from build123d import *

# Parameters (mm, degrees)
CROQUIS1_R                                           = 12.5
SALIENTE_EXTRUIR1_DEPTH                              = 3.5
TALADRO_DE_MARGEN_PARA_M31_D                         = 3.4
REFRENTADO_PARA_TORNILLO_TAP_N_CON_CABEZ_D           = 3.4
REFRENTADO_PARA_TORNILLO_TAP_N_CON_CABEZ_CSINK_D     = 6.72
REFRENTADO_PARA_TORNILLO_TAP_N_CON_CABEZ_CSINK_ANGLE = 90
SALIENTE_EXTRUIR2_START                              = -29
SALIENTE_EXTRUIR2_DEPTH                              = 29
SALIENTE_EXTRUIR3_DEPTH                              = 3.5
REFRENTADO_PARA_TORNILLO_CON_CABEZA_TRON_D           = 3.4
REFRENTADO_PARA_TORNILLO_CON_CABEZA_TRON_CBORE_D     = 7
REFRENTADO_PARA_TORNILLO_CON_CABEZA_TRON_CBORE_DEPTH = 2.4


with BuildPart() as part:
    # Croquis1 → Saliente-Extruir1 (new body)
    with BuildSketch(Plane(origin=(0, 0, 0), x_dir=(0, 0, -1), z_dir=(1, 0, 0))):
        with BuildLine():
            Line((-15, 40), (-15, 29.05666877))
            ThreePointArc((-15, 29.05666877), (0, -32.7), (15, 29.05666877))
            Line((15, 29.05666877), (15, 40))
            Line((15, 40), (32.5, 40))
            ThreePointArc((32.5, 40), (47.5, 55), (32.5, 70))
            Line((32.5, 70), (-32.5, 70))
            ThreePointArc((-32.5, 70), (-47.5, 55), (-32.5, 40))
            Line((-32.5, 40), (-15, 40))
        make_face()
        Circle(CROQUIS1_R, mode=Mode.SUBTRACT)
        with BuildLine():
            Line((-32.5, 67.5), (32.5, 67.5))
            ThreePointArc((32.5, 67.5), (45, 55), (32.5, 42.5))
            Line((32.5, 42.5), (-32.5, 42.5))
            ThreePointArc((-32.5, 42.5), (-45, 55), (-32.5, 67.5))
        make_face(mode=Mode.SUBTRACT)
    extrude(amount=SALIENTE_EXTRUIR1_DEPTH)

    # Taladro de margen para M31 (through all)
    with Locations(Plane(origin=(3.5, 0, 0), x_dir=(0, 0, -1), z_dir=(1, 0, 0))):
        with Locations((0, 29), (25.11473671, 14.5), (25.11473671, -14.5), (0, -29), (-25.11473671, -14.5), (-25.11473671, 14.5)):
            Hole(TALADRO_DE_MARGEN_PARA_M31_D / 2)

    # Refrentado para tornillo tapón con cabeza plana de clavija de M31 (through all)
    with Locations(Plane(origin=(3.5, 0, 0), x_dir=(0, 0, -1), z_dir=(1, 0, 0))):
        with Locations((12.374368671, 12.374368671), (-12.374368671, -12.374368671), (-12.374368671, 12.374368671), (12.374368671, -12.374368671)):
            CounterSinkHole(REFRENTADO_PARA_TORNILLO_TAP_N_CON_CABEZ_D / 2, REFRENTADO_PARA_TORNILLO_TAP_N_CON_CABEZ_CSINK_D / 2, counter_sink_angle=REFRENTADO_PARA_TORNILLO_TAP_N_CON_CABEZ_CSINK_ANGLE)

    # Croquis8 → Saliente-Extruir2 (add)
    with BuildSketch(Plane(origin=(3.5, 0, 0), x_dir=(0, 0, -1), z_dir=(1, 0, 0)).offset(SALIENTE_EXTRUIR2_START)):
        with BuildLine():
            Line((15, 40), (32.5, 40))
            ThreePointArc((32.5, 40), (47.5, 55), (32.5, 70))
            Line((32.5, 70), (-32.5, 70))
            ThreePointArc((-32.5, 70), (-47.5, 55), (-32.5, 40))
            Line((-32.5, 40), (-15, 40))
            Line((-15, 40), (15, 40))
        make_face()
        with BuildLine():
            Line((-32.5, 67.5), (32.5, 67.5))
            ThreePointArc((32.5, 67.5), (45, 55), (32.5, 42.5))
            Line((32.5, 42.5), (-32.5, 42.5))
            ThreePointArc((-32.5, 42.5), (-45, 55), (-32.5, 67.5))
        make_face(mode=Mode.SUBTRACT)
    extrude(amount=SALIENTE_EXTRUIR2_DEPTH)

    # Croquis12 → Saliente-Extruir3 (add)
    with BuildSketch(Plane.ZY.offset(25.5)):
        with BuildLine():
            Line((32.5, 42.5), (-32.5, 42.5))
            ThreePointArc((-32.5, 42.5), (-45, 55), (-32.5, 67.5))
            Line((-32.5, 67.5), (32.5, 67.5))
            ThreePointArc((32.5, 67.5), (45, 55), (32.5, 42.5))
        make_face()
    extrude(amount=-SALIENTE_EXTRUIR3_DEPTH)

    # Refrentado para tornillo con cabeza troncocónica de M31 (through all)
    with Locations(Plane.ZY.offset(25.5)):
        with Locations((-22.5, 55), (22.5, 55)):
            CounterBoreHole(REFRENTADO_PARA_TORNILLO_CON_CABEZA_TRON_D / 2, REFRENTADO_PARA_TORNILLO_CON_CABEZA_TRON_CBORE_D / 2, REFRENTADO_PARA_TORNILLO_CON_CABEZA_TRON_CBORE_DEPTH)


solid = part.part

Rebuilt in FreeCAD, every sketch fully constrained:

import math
import FreeCAD as App
import Part
import Sketcher
from FreeCAD import Vector
Q = App.Units.Quantity

doc = App.newDocument("Part")
params = doc.addObject("Spreadsheet::Sheet", "Params")
for row, (alias, value) in enumerate([
    ("sketch1_diameter", "25 mm"),
    ("sketch1_radius", "15 mm"),
    ("sketch1_radius2", "32.7 mm"),
    ("sketch1_height", "65 mm"),
    ("sketch1_height2", "17.5 mm"),
    ("pad1_length", "3.5 mm"),
    ("sketch2_diameter", "3.4 mm"),
    ("hole_diameter", "3.4 mm"),
    ("sketch3_diameter", "3.4 mm"),
    ("hole2_diameter", "3.4 mm"),
    ("hole2_csink_diameter", "6.72 mm"),
    ("sketch4_radius", "15 mm"),
    ("sketch4_radius2", "12.5 mm"),
    ("sketch4_height", "65 mm"),
    ("pad2_length", "29 mm"),
    ("sketch5_radius", "12.5 mm"),
    ("sketch5_height", "65 mm"),
    ("pad3_length", "3.5 mm"),
    ("sketch6_diameter", "3.4 mm"),
    ("hole3_diameter", "3.4 mm"),
    ("hole3_cbore_diameter", "7 mm"),
    ("hole3_cbore_depth", "2.4 mm"),
], start=1):
    params.set(f"A{row}", alias)
    params.set(f"B{row}", "=" + value)
    params.setAlias(f"B{row}", alias)

body = doc.addObject("PartDesign::Body", "Body")

sketch1 = body.newObject("Sketcher::SketchObject", "Sketch")
sketch1.AttachmentSupport = (doc.getObject("YZ_Plane"), [""])
sketch1.MapMode = "FlatFace"
sketch1.addGeometry([
    Part.LineSegment(Vector(40, 15, 0), Vector(29, 15, 0)),
    Part.ArcOfCircle(Part.Circle(Vector(0, 0, 0), Vector(0, 0, 1), 33), math.radians(27), math.radians(333)),
    Part.LineSegment(Vector(29, -15, 0), Vector(40, -15, 0)),
    Part.LineSegment(Vector(40, -15, 0), Vector(40, -32, 0)),
    Part.ArcOfCircle(Part.Circle(Vector(55, -32, 0), Vector(0, 0, 1), 15), math.radians(180), math.radians(360)),
    Part.LineSegment(Vector(70, -32, 0), Vector(70, 32, 0)),
    Part.ArcOfCircle(Part.Circle(Vector(55, 32, 0), Vector(0, 0, 1), 15), math.radians(0), math.radians(180)),
    Part.LineSegment(Vector(40, 32, 0), Vector(40, 15, 0)),
    Part.Circle(Vector(0, 0, 0), Vector(0, 0, 1), 12),
    Part.ArcOfCircle(Part.Circle(Vector(55, 32, 0), Vector(0, 0, 1), 12), math.radians(0), math.radians(180)),
    Part.LineSegment(Vector(68, 32, 0), Vector(68, -32, 0)),
    Part.ArcOfCircle(Part.Circle(Vector(55, -32, 0), Vector(0, 0, 1), 12), math.radians(180), math.radians(360)),
    Part.LineSegment(Vector(42, -32, 0), Vector(42, 32, 0)),
], False)
sketch1.addConstraint([
    Sketcher.Constraint("Coincident", 0, 2, 1, 1),
    Sketcher.Constraint("Coincident", 1, 2, 2, 1),
    Sketcher.Constraint("Coincident", 2, 2, 3, 1),
    Sketcher.Constraint("Tangent", 3, 2, 4, 1),
    Sketcher.Constraint("Tangent", 4, 2, 5, 1),
    Sketcher.Constraint("Tangent", 5, 2, 6, 1),
    Sketcher.Constraint("Tangent", 6, 2, 7, 1),
    Sketcher.Constraint("Coincident", 7, 2, 0, 1),
    Sketcher.Constraint("Tangent", 9, 1, 10, 1),
    Sketcher.Constraint("Tangent", 10, 2, 11, 2),
    Sketcher.Constraint("Tangent", 11, 1, 12, 1),
    Sketcher.Constraint("Tangent", 12, 2, 9, 2),
    Sketcher.Constraint("Horizontal", 0),
    Sketcher.Constraint("Horizontal", 2),
    Sketcher.Constraint("Vertical", 3),
    Sketcher.Constraint("Vertical", 5),
    Sketcher.Constraint("Vertical", 7),
    Sketcher.Constraint("Vertical", 10),
    Sketcher.Constraint("Vertical", 12),
    Sketcher.Constraint("Coincident", 1, 3, -1, 1),
    Sketcher.Constraint("Coincident", 8, 3, -1, 1),
    Sketcher.Constraint("Coincident", 9, 3, 6, 3),
    Sketcher.Constraint("Coincident", 11, 3, 4, 3),
    Sketcher.Constraint("Equal", 8, 9),
    Sketcher.Constraint("Vertical", 0, 2, 1, 2),
    Sketcher.Constraint("Equal", 3, 7),
    Sketcher.Constraint("Diameter", 8, Q("25 mm")),
    Sketcher.Constraint("Radius", 4, Q("15 mm")),
    Sketcher.Constraint("Radius", 1, Q("32.7 mm")),
    Sketcher.Constraint("DistanceY", 5, 1, 5, 2, Q("65 mm")),
    Sketcher.Constraint("DistanceY", 3, 2, 3, 1, Q("17.5 mm")),
    Sketcher.Constraint("DistanceX", -1, 1, 4, 3, Q("55 mm")),
])
sketch1.setExpression("Constraints[26]", "Params.sketch1_diameter")
sketch1.setExpression("Constraints[27]", "Params.sketch1_radius")
sketch1.setExpression("Constraints[28]", "Params.sketch1_radius2")
sketch1.setExpression("Constraints[29]", "Params.sketch1_height")
sketch1.setExpression("Constraints[30]", "Params.sketch1_height2")
pad1 = body.newObject("PartDesign::Pad", "Pad")
pad1.Profile = sketch1
pad1.setExpression("Length", "Params.pad1_length")

sketch2 = body.newObject("Sketcher::SketchObject", "Sketch001")
sketch2.AttachmentSupport = (doc.getObject("YZ_Plane"), [""])
sketch2.MapMode = "FlatFace"
sketch2.AttachmentOffset = App.Placement(Vector(0, 0, 3.5), App.Rotation())
sketch2.addGeometry([
    Part.Circle(Vector(29, 0, 0), Vector(0, 0, 1), 1.7),
    Part.Circle(Vector(14.5, -25.1, 0), Vector(0, 0, 1), 1.7),
    Part.Circle(Vector(-14.5, -25.1, 0), Vector(0, 0, 1), 1.7),
    Part.Circle(Vector(-29, 0, 0), Vector(0, 0, 1), 1.7),
    Part.Circle(Vector(-14.5, 25.1, 0), Vector(0, 0, 1), 1.7),
    Part.Circle(Vector(14.5, 25.1, 0), Vector(0, 0, 1), 1.7),
], False)
sketch2.addConstraint([
    Sketcher.Constraint("Equal", 0, 1),
    Sketcher.Constraint("Equal", 1, 2),
    Sketcher.Constraint("Equal", 2, 3),
    Sketcher.Constraint("Equal", 3, 4),
    Sketcher.Constraint("Equal", 4, 5),
    Sketcher.Constraint("Symmetric", 0, 3, 3, 3, -1, 1),
    Sketcher.Constraint("Symmetric", 1, 3, 4, 3, -1, 1),
    Sketcher.Constraint("Symmetric", 2, 3, 5, 3, -1, 1),
    Sketcher.Constraint("Symmetric", 1, 3, 2, 3, -2),
    Sketcher.Constraint("PointOnObject", 0, 3, -1),
    Sketcher.Constraint("Diameter", 0, Q("3.4 mm")),
    Sketcher.Constraint("DistanceX", -1, 1, 0, 3, Q("29 mm")),
    Sketcher.Constraint("DistanceX", 2, 3, 1, 3, Q("29 mm")),
    Sketcher.Constraint("DistanceY", 1, 3, -1, 1, Q("25.114737 mm")),
])
sketch2.setExpression("Constraints[10]", "Params.sketch2_diameter")
doc.recompute()
hole = body.newObject("PartDesign::Hole", "Hole")
hole.Profile = sketch2
hole.ThreadType = "None"
hole.setExpression("Diameter", "Params.hole_diameter")
hole.DepthType = "ThroughAll"

sketch3 = body.newObject("Sketcher::SketchObject", "Sketch002")
sketch3.AttachmentSupport = (doc.getObject("YZ_Plane"), [""])
sketch3.MapMode = "FlatFace"
sketch3.AttachmentOffset = App.Placement(Vector(0, 0, 3.5), App.Rotation())
sketch3.addGeometry([
    Part.Circle(Vector(12.4, -12.4, 0), Vector(0, 0, 1), 1.7),
    Part.Circle(Vector(-12.4, 12.4, 0), Vector(0, 0, 1), 1.7),
    Part.Circle(Vector(12.4, 12.4, 0), Vector(0, 0, 1), 1.7),
    Part.Circle(Vector(-12.4, -12.4, 0), Vector(0, 0, 1), 1.7),
], False)
sketch3.addConstraint([
    Sketcher.Constraint("Equal", 0, 1),
    Sketcher.Constraint("Equal", 1, 2),
    Sketcher.Constraint("Equal", 2, 3),
    Sketcher.Constraint("Symmetric", 0, 3, 1, 3, -1, 1),
    Sketcher.Constraint("Symmetric", 2, 3, 3, 3, -1, 1),
    Sketcher.Constraint("Symmetric", 1, 3, 2, 3, -2),
    Sketcher.Constraint("Diameter", 0, Q("3.4 mm")),
    Sketcher.Constraint("DistanceX", -1, 1, 0, 3, Q("12.374369 mm")),
    Sketcher.Constraint("DistanceY", 0, 3, -1, 1, Q("12.374369 mm")),
])
sketch3.setExpression("Constraints[6]", "Params.sketch3_diameter")
doc.recompute()
hole2 = body.newObject("PartDesign::Hole", "Hole001")
hole2.Profile = sketch3
hole2.ThreadType = "None"
hole2.setExpression("Diameter", "Params.hole2_diameter")
hole2.DepthType = "ThroughAll"
hole2.HoleCutType = "Countersink"
hole2.setExpression("HoleCutDiameter", "Params.hole2_csink_diameter")
hole2.HoleCutCountersinkAngle = 90

sketch4 = body.newObject("Sketcher::SketchObject", "Sketch003")
sketch4.AttachmentSupport = (doc.getObject("YZ_Plane"), [""])
sketch4.MapMode = "FlatFace"
sketch4.AttachmentOffset = App.Placement(Vector(0, 0, -25.5), App.Rotation())
sketch4.addGeometry([
    Part.ArcOfCircle(Part.Circle(Vector(55, -32, 0), Vector(0, 0, 1), 15), math.radians(180), math.radians(360)),
    Part.LineSegment(Vector(70, -32, 0), Vector(70, 32, 0)),
    Part.ArcOfCircle(Part.Circle(Vector(55, 32, 0), Vector(0, 0, 1), 15), math.radians(0), math.radians(180)),
    Part.LineSegment(Vector(40, 32, 0), Vector(40, -32, 0)),
    Part.ArcOfCircle(Part.Circle(Vector(55, 32, 0), Vector(0, 0, 1), 12), math.radians(0), math.radians(180)),
    Part.LineSegment(Vector(68, 32, 0), Vector(68, -32, 0)),
    Part.ArcOfCircle(Part.Circle(Vector(55, -32, 0), Vector(0, 0, 1), 12), math.radians(180), math.radians(360)),
    Part.LineSegment(Vector(42, -32, 0), Vector(42, 32, 0)),
], False)
sketch4.addConstraint([
    Sketcher.Constraint("Tangent", 0, 2, 1, 1),
    Sketcher.Constraint("Tangent", 1, 2, 2, 1),
    Sketcher.Constraint("Tangent", 2, 2, 3, 1),
    Sketcher.Constraint("Tangent", 3, 2, 0, 1),
    Sketcher.Constraint("Tangent", 4, 1, 5, 1),
    Sketcher.Constraint("Tangent", 5, 2, 6, 2),
    Sketcher.Constraint("Tangent", 6, 1, 7, 1),
    Sketcher.Constraint("Tangent", 7, 2, 4, 2),
    Sketcher.Constraint("Vertical", 1),
    Sketcher.Constraint("Vertical", 3),
    Sketcher.Constraint("Vertical", 5),
    Sketcher.Constraint("Vertical", 7),
    Sketcher.Constraint("Coincident", 4, 3, 2, 3),
    Sketcher.Constraint("Horizontal", 6, 3, 0, 2),
    Sketcher.Constraint("Radius", 0, Q("15 mm")),
    Sketcher.Constraint("Radius", 4, Q("12.5 mm")),
    Sketcher.Constraint("DistanceY", 1, 1, 1, 2, Q("65 mm")),
    Sketcher.Constraint("DistanceX", -1, 1, 0, 3, Q("55 mm")),
    Sketcher.Constraint("DistanceY", 0, 3, -1, 1, Q("32.5 mm")),
])
sketch4.setExpression("Constraints[14]", "Params.sketch4_radius")
sketch4.setExpression("Constraints[15]", "Params.sketch4_radius2")
sketch4.setExpression("Constraints[16]", "Params.sketch4_height")
pad2 = body.newObject("PartDesign::Pad", "Pad001")
pad2.Profile = sketch4
pad2.setExpression("Length", "Params.pad2_length")

sketch5 = body.newObject("Sketcher::SketchObject", "Sketch004")
sketch5.AttachmentSupport = (doc.getObject("YZ_Plane"), [""])
sketch5.MapMode = "FlatFace"
sketch5.AttachmentOffset = App.Placement(Vector(0, 0, -25.5), App.Rotation())
sketch5.addGeometry([
    Part.LineSegment(Vector(42, -32, 0), Vector(42, 32, 0)),
    Part.ArcOfCircle(Part.Circle(Vector(55, 32, 0), Vector(0, 0, 1), 12), math.radians(0), math.radians(180)),
    Part.LineSegment(Vector(68, 32, 0), Vector(68, -32, 0)),
    Part.ArcOfCircle(Part.Circle(Vector(55, -32, 0), Vector(0, 0, 1), 12), math.radians(180), math.radians(360)),
], False)
sketch5.addConstraint([
    Sketcher.Constraint("Tangent", 0, 2, 1, 2),
    Sketcher.Constraint("Tangent", 1, 1, 2, 1),
    Sketcher.Constraint("Tangent", 2, 2, 3, 2),
    Sketcher.Constraint("Tangent", 3, 1, 0, 1),
    Sketcher.Constraint("Vertical", 0),
    Sketcher.Constraint("Vertical", 2),
    Sketcher.Constraint("Radius", 1, Q("12.5 mm")),
    Sketcher.Constraint("DistanceY", 0, 1, 0, 2, Q("65 mm")),
    Sketcher.Constraint("DistanceX", -1, 1, 1, 3, Q("55 mm")),
    Sketcher.Constraint("DistanceY", -1, 1, 1, 3, Q("32.5 mm")),
])
sketch5.setExpression("Constraints[6]", "Params.sketch5_radius")
sketch5.setExpression("Constraints[7]", "Params.sketch5_height")
pad3 = body.newObject("PartDesign::Pad", "Pad002")
pad3.Profile = sketch5
pad3.setExpression("Length", "Params.pad3_length")

sketch6 = body.newObject("Sketcher::SketchObject", "Sketch005")
sketch6.AttachmentSupport = (doc.getObject("YZ_Plane"), [""])
sketch6.MapMode = "FlatFace"
sketch6.AttachmentOffset = App.Placement(Vector(0, 0, -25.5), App.Rotation())
sketch6.addGeometry([
    Part.Circle(Vector(55, -22.5, 0), Vector(0, 0, 1), 1.7),
    Part.Circle(Vector(55, 22.5, 0), Vector(0, 0, 1), 1.7),
], False)
sketch6.addConstraint([
    Sketcher.Constraint("Equal", 0, 1),
    Sketcher.Constraint("Symmetric", 0, 3, 1, 3, -1),
    Sketcher.Constraint("Diameter", 0, Q("3.4 mm")),
    Sketcher.Constraint("DistanceX", -1, 1, 0, 3, Q("55 mm")),
    Sketcher.Constraint("DistanceY", 0, 3, 1, 3, Q("45 mm")),
])
sketch6.setExpression("Constraints[2]", "Params.sketch6_diameter")
doc.recompute()
hole3 = body.newObject("PartDesign::Hole", "Hole002")
hole3.Profile = sketch6
hole3.ThreadType = "None"
hole3.setExpression("Diameter", "Params.hole3_diameter")
hole3.DepthType = "ThroughAll"
hole3.HoleCutType = "Counterbore"
hole3.setExpression("HoleCutDiameter", "Params.hole3_cbore_diameter")
hole3.setExpression("HoleCutDepth", "Params.hole3_cbore_depth")
hole3.Reversed = True

doc.recompute()
